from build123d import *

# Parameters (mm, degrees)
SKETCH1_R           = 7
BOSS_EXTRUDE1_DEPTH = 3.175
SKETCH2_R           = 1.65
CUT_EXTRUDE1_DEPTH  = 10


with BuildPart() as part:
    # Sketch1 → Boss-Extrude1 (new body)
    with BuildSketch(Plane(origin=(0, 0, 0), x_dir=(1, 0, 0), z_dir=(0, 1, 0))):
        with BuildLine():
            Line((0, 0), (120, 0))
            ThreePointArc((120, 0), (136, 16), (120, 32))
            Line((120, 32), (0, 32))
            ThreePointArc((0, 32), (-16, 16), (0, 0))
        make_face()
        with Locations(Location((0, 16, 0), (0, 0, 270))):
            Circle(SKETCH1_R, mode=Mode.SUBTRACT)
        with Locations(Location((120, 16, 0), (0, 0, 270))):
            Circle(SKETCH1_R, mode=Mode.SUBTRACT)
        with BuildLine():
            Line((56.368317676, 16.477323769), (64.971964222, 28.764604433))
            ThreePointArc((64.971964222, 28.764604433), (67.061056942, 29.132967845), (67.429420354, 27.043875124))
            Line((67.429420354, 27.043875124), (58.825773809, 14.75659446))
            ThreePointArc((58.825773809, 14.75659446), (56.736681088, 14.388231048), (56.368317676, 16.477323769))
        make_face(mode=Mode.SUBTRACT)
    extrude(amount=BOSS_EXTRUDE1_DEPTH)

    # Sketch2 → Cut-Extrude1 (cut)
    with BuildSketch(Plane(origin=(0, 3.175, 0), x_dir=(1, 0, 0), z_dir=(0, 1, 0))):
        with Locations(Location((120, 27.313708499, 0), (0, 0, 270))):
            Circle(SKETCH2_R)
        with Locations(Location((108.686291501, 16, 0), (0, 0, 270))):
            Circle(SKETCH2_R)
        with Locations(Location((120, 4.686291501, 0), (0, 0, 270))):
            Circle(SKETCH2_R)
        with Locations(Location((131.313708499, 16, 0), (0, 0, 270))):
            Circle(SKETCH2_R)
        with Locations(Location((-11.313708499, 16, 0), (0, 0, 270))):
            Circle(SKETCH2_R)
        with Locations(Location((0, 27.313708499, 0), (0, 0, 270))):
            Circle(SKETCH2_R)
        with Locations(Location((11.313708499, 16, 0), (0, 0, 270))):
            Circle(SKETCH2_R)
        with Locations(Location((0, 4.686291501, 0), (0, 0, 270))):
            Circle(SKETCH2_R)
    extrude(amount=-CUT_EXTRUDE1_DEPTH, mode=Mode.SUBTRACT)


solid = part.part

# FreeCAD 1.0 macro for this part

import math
import FreeCAD as App
import Part
import Sketcher
Q = App.Units.Quantity

doc = App.newDocument("Part")
body = doc.addObject("PartDesign::Body", "Body")

sketch1 = body.newObject("Sketcher::SketchObject", "Sketch")
sketch1.AttachmentSupport = (doc.getObject("XZ_Plane"), [""])
sketch1.MapMode = "FlatFace"
sketch1.addGeometry([
    Part.LineSegment(App.Vector(0, 0, 0), App.Vector(120, 0, 0)),
    Part.ArcOfCircle(Part.Circle(App.Vector(120, -16, 0), App.Vector(0, 0, 1), 16), math.radians(-90), math.radians(90)),
    Part.LineSegment(App.Vector(120, -32, 0), App.Vector(0, -32, 0)),
    Part.ArcOfCircle(Part.Circle(App.Vector(0, -16, 0), App.Vector(0, 0, 1), 16), math.radians(90), math.radians(270)),
    Part.Circle(App.Vector(0, -16, 0), App.Vector(0, 0, 1), 7),
    Part.Circle(App.Vector(120, -16, 0), App.Vector(0, 0, 1), 7),
    Part.ArcOfCircle(Part.Circle(App.Vector(57.6, -15.6, 0), App.Vector(0, 0, 1), 1.5), math.radians(35), math.radians(215)),
    Part.LineSegment(App.Vector(56.4, -16.5, 0), App.Vector(65, -28.8, 0)),
    Part.ArcOfCircle(Part.Circle(App.Vector(66.2, -27.9, 0), App.Vector(0, 0, 1), 1.5), math.radians(-145), math.radians(35)),
    Part.LineSegment(App.Vector(67.4, -27, 0), App.Vector(58.8, -14.8, 0)),
], False)
sketch1.addConstraint([
    Sketcher.Constraint("Tangent", 0, 2, 1, 2),
    Sketcher.Constraint("Tangent", 1, 1, 2, 1),
    Sketcher.Constraint("Tangent", 2, 2, 3, 2),
    Sketcher.Constraint("Tangent", 3, 1, 0, 1),
    Sketcher.Constraint("Tangent", 6, 2, 7, 1),
    Sketcher.Constraint("Tangent", 7, 2, 8, 1),
    Sketcher.Constraint("Tangent", 8, 2, 9, 1),
    Sketcher.Constraint("Tangent", 9, 2, 6, 1),
    Sketcher.Constraint("Horizontal", 0),
    Sketcher.Constraint("Horizontal", 2),
    Sketcher.Constraint("Coincident", 3, 1, -1, 1),
    Sketcher.Constraint("Coincident", 4, 3, 3, 3),
    Sketcher.Constraint("Coincident", 5, 3, 1, 3),
    Sketcher.Constraint("Equal", 4, 5),
    Sketcher.Constraint("Equal", 6, 8),
    Sketcher.Constraint("Diameter", 4, 14.0),
    Sketcher.Constraint("Radius", 1, 16.0),
    Sketcher.Constraint("Radius", 6, 1.5),
    Sketcher.Constraint("DistanceX", 0, 1, 0, 2, 120.0),
    Sketcher.Constraint("Angle", 7, Q("-55 deg")),
    Sketcher.Constraint("Distance", 7, 15.0),
    Sketcher.Constraint("DistanceY", 6, 3, -1, 1, 15.616959),
    Sketcher.Constraint("DistanceX", -1, 1, 8, 2, 67.42942),
])
pad1 = body.newObject("PartDesign::Pad", "Pad")
pad1.Profile = sketch1
pad1.Length = 3.175
pad1.Reversed = True

sketch2 = body.newObject("Sketcher::SketchObject", "Sketch001")
sketch2.AttachmentSupport = (doc.getObject("XZ_Plane"), [""])
sketch2.MapMode = "FlatFace"
sketch2.AttachmentOffset = App.Placement(App.Vector(0, 0, -3.175), App.Rotation())
sketch2.addGeometry([
    Part.Circle(App.Vector(120, -27.3, 0), App.Vector(0, 0, 1), 1.6),
    Part.Circle(App.Vector(108.7, -16, 0), App.Vector(0, 0, 1), 1.6),
    Part.Circle(App.Vector(120, -4.7, 0), App.Vector(0, 0, 1), 1.6),
    Part.Circle(App.Vector(131.3, -16, 0), App.Vector(0, 0, 1), 1.6),
    Part.Circle(App.Vector(-11.3, -16, 0), App.Vector(0, 0, 1), 1.6),
    Part.Circle(App.Vector(0, -27.3, 0), App.Vector(0, 0, 1), 1.6),
    Part.Circle(App.Vector(11.3, -16, 0), App.Vector(0, 0, 1), 1.6),
    Part.Circle(App.Vector(0, -4.7, 0), App.Vector(0, 0, 1), 1.6),
], False)
sketch2.addConstraint([
    Sketcher.Constraint("Equal", 0, 1),
    Sketcher.Constraint("Equal", 1, 2),
    Sketcher.Constraint("Equal", 2, 3),
    Sketcher.Constraint("Equal", 3, 4),
    Sketcher.Constraint("Equal", 4, 5),
    Sketcher.Constraint("Equal", 5, 6),
    Sketcher.Constraint("Equal", 6, 7),
    Sketcher.Constraint("Symmetric", 4, 3, 6, 3, -2),
    Sketcher.Constraint("PointOnObject", 5, 3, -2),
    Sketcher.Constraint("PointOnObject", 7, 3, -2),
    Sketcher.Constraint("Horizontal", 1, 3, 3, 3),
    Sketcher.Constraint("Horizontal", 3, 3, 4, 3),
    Sketcher.Constraint("Horizontal", 0, 3, 5, 3),
    Sketcher.Constraint("Horizontal", 2, 3, 7, 3),
    Sketcher.Constraint("Vertical", 0, 3, 2, 3),
    Sketcher.Constraint("Diameter", 0, 3.3),
    Sketcher.Constraint("DistanceX", -1, 1, 0, 3, 120.0),
    Sketcher.Constraint("DistanceY", 1, 3, -1, 1, 16.0),
    Sketcher.Constraint("DistanceX", 4, 3, 1, 3, 120.0),
    Sketcher.Constraint("DistanceY", 0, 3, -1, 1, 27.313708),
    Sketcher.Constraint("DistanceX", -1, 1, 1, 3, 108.686292),
    Sketcher.Constraint("DistanceY", 2, 3, -1, 1, 4.686292),
    Sketcher.Constraint("DistanceX", -1, 1, 3, 3, 131.313708),
])
pocket1 = body.newObject("PartDesign::Pocket", "Pocket")
pocket1.Profile = sketch2
pocket1.Length = 10
pocket1.Reversed = True

doc.recompute()
